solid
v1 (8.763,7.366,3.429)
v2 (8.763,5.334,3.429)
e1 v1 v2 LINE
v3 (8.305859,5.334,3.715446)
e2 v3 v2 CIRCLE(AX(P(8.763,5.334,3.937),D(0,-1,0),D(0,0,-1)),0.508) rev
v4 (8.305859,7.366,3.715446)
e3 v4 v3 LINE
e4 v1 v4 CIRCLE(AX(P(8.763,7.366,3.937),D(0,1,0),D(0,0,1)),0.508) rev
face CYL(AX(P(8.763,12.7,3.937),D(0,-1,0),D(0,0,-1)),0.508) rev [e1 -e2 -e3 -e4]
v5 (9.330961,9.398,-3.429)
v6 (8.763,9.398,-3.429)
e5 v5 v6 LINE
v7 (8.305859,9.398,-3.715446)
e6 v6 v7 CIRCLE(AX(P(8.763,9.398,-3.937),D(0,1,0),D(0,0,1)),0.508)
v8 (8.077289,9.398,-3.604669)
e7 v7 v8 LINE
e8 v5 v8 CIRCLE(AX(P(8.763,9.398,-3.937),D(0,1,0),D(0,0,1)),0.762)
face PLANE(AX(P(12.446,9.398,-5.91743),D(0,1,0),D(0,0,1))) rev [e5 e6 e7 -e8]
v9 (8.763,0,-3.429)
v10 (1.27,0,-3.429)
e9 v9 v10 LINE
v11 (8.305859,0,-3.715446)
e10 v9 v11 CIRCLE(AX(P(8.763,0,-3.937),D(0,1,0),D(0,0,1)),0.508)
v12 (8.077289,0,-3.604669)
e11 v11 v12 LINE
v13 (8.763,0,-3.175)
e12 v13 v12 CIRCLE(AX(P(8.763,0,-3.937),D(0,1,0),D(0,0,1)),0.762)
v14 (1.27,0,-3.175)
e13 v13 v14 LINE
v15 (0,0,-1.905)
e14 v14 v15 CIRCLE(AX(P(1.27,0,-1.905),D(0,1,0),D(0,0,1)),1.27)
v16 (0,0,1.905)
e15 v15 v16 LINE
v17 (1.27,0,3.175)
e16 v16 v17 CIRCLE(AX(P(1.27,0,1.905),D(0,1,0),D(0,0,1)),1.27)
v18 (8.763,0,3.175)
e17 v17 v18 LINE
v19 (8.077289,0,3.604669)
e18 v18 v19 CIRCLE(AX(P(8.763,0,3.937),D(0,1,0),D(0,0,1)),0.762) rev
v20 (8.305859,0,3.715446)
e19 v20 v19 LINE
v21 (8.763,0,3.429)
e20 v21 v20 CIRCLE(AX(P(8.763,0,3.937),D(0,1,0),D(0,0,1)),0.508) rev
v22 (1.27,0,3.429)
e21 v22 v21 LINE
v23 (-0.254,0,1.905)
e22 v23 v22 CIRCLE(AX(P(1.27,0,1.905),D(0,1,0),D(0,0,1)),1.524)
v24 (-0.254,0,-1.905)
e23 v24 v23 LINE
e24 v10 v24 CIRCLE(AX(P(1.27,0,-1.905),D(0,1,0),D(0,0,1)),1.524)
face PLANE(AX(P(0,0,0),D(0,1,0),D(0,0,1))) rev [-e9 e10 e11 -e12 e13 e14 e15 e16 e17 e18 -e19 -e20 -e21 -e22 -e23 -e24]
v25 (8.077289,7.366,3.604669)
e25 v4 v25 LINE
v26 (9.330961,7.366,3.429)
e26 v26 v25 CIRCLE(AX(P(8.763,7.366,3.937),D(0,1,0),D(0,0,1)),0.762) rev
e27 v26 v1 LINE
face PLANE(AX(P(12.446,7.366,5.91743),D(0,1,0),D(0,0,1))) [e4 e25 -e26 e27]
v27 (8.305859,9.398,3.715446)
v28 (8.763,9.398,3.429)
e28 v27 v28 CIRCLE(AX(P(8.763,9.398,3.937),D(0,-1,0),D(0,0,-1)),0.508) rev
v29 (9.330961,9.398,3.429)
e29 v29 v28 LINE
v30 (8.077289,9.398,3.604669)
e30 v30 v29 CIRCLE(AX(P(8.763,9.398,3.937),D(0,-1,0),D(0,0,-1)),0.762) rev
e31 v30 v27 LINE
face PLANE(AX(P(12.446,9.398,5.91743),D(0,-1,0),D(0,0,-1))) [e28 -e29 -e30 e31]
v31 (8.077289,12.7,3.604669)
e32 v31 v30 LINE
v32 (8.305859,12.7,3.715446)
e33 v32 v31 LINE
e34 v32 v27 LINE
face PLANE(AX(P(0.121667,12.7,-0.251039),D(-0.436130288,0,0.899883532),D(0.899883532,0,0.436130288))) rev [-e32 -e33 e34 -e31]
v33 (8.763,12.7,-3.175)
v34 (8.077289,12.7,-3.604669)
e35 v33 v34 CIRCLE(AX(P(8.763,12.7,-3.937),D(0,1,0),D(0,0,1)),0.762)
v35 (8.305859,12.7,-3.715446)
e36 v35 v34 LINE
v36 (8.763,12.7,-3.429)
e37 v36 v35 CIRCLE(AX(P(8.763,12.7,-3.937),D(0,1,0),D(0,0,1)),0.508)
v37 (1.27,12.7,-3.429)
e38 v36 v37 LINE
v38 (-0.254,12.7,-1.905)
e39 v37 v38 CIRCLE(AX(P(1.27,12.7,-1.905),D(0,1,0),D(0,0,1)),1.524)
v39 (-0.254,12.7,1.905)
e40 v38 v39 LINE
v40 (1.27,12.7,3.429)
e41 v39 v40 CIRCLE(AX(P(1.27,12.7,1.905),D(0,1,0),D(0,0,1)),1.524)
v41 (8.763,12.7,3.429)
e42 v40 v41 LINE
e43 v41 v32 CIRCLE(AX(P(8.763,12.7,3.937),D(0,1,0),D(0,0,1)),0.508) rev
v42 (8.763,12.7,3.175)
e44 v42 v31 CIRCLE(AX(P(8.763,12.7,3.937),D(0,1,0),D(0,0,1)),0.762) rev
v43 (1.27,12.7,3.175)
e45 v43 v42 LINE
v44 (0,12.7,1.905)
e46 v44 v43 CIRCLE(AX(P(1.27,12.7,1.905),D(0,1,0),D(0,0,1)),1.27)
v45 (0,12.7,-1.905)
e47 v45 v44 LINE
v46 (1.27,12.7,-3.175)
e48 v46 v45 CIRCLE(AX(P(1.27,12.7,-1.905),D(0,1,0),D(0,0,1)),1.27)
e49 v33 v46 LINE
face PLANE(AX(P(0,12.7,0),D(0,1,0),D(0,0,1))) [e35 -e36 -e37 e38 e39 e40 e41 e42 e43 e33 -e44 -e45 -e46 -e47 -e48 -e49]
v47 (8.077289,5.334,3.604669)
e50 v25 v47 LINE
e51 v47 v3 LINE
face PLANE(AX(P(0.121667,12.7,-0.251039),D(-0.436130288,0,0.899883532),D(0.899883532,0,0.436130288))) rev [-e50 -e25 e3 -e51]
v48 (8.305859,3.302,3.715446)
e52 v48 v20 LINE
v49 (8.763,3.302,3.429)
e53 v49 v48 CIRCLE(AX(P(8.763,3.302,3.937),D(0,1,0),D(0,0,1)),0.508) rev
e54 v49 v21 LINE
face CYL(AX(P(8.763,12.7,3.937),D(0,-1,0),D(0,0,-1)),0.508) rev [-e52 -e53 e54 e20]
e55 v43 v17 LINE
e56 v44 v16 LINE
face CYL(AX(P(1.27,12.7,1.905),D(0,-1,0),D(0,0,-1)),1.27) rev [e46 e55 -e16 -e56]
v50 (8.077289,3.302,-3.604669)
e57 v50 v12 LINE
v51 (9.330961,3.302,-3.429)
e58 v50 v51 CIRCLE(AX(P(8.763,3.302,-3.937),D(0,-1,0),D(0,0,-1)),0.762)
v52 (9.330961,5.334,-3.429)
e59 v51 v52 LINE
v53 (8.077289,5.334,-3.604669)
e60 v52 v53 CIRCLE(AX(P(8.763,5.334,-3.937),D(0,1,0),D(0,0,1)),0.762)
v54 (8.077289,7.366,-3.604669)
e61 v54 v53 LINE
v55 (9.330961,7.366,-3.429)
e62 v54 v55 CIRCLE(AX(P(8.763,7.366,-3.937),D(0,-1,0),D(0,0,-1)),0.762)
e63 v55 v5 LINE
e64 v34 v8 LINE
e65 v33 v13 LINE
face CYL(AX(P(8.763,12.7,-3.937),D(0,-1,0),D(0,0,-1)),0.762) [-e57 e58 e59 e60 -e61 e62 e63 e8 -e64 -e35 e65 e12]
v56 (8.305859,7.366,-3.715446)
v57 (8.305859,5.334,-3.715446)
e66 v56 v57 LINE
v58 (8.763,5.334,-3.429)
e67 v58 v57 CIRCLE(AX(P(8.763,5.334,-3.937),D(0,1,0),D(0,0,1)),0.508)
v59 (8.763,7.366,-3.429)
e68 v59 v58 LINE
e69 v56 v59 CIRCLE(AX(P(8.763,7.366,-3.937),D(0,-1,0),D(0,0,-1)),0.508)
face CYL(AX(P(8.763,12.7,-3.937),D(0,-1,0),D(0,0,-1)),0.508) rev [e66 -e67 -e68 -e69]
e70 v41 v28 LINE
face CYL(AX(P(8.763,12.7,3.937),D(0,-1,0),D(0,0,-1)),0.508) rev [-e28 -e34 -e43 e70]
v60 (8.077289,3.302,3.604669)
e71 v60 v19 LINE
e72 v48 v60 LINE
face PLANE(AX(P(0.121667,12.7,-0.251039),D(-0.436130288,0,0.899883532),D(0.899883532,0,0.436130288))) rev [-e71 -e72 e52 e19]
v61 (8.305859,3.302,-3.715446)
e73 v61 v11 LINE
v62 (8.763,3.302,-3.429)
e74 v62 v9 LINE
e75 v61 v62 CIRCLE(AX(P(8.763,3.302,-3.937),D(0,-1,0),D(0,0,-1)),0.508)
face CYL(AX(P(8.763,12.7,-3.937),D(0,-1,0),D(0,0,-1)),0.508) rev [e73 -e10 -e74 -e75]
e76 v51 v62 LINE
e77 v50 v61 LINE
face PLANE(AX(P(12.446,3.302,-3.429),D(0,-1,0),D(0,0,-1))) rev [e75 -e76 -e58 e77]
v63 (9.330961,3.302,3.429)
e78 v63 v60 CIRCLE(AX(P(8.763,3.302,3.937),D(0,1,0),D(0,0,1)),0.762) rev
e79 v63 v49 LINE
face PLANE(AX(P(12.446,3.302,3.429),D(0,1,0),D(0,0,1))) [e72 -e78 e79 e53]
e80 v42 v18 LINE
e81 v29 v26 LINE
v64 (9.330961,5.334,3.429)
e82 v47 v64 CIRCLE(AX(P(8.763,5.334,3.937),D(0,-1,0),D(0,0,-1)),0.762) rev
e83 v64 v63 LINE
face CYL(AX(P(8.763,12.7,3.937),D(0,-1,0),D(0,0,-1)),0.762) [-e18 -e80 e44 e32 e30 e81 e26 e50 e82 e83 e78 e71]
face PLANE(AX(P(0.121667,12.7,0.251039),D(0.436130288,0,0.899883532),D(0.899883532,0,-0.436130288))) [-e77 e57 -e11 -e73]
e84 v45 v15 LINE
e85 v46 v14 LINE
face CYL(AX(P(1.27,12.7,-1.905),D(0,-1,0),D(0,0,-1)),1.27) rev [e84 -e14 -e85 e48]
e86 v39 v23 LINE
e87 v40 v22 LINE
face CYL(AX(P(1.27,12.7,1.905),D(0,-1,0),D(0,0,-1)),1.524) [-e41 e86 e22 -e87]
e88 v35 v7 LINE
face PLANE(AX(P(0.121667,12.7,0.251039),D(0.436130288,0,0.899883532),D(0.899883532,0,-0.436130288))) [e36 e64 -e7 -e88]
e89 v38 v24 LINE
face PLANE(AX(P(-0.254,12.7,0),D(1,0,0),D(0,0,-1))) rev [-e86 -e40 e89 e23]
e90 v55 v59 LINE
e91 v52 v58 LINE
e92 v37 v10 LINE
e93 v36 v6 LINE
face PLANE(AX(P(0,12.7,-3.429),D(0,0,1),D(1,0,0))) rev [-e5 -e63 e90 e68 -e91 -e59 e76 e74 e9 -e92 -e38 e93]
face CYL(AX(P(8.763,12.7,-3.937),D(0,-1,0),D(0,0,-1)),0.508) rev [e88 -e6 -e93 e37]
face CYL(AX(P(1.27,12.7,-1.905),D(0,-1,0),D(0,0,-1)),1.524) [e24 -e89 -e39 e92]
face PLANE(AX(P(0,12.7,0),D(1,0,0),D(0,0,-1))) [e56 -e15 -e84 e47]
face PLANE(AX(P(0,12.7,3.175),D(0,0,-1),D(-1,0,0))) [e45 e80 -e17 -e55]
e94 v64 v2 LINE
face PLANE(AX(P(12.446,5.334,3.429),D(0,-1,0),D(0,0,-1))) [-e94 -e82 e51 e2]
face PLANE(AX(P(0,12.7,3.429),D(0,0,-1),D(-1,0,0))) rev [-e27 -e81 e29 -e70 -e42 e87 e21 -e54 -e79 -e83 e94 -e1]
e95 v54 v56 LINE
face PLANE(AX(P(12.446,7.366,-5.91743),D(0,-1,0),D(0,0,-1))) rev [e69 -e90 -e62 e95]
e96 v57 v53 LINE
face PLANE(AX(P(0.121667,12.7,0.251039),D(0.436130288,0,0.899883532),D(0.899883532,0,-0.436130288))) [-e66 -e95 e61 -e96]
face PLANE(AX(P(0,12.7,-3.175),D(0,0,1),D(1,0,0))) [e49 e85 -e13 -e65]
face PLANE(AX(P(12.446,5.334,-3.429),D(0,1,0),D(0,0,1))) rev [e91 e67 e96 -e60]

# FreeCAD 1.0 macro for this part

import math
import FreeCAD as App
import Part
import Sketcher
Q = App.Units.Quantity


def add_polygon(sketch, points):
    """Adds a closed chain of lines whose ends are joined by coincident constraints."""
    first, n = sketch.GeometryCount, len(points)
    for a, b in zip(points, points[1:] + points[:1]):
        sketch.addGeometry(Part.LineSegment(App.Vector(*a, 0), App.Vector(*b, 0)), False)
    for i in range(n):
        sketch.addConstraint(Sketcher.Constraint("Coincident", first + i, 2, first + (i + 1) % n, 1))

doc = App.newDocument("Part")
params = doc.addObject("Spreadsheet::Sheet", "Params")
for row, (alias, value) in enumerate([
    ("sketch1_radius", "0.03 in"),
    ("sketch1_radius2", "0.05 in"),
    ("sketch1_radius3", "0.02 in"),
    ("sketch1_height", "0.15 in"),
    ("sketch1_width", "0.295 in"),
    ("pad1_length", "0.5 in"),
    ("sketch2_width", "0.08 in"),
    ("pocket1_length", "0.5 in"),
], start=1):
    params.set(f"A{row}", alias)
    params.set(f"B{row}", "=" + value)
    params.setAlias(f"B{row}", alias)

body = doc.addObject("PartDesign::Body", "Body")

# Sketch on XZ plane
sketch1 = doc.addObject("Sketcher::SketchObject", "Sketch")
body.addObject(sketch1)
sketch1.AttachmentSupport = (doc.XZ_Plane, [""])
sketch1.MapMode = "FlatFace"
sketch1.addGeometry([
    Part.ArcOfCircle(Part.Circle(App.Vector(8.76, 3.94, 0), App.Vector(0, 0, 1), 0.76), math.radians(-90), math.radians(206)),  # 0
    Part.LineSegment(App.Vector(8.76, 3.17, 0), App.Vector(1.27, 3.17, 0)),  # 1
    Part.ArcOfCircle(Part.Circle(App.Vector(1.27, 1.91, 0), App.Vector(0, 0, 1), 1.27), math.radians(90), math.radians(180)),  # 2
    Part.LineSegment(App.Vector(0, 1.91, 0), App.Vector(0, -1.91, 0)),  # 3
    Part.ArcOfCircle(Part.Circle(App.Vector(1.27, -1.91, 0), App.Vector(0, 0, 1), 1.27), math.radians(180), math.radians(270)),  # 4
    Part.LineSegment(App.Vector(1.27, -3.17, 0), App.Vector(8.76, -3.17, 0)),  # 5
    Part.ArcOfCircle(Part.Circle(App.Vector(8.76, -3.94, 0), App.Vector(0, 0, 1), 0.76), math.radians(154), math.radians(450)),  # 6
    Part.LineSegment(App.Vector(8.08, -3.6, 0), App.Vector(8.31, -3.72, 0)),  # 7
    Part.ArcOfCircle(Part.Circle(App.Vector(8.76, -3.94, 0), App.Vector(0, 0, 1), 0.51), math.radians(154), math.radians(450)),  # 8
    Part.LineSegment(App.Vector(8.76, -3.43, 0), App.Vector(1.27, -3.43, 0)),  # 9
    Part.ArcOfCircle(Part.Circle(App.Vector(1.27, -1.91, 0), App.Vector(0, 0, 1), 1.52), math.radians(180), math.radians(270)),  # 10
    Part.LineSegment(App.Vector(-0.25, -1.91, 0), App.Vector(-0.25, 1.91, 0)),  # 11
    Part.ArcOfCircle(Part.Circle(App.Vector(1.27, 1.91, 0), App.Vector(0, 0, 1), 1.52), math.radians(90), math.radians(180)),  # 12
    Part.LineSegment(App.Vector(1.27, 3.43, 0), App.Vector(8.76, 3.43, 0)),  # 13
    Part.ArcOfCircle(Part.Circle(App.Vector(8.76, 3.94, 0), App.Vector(0, 0, 1), 0.51), math.radians(-90), math.radians(206)),  # 14
    Part.LineSegment(App.Vector(8.31, 3.72, 0), App.Vector(8.08, 3.6, 0)),  # 15
], False)
sketch1.addConstraint([
    Sketcher.Constraint("Tangent", 0, 1, 1, 1),
    Sketcher.Constraint("Tangent", 1, 2, 2, 1),
    Sketcher.Constraint("Tangent", 2, 2, 3, 1),
    Sketcher.Constraint("Tangent", 3, 2, 4, 1),
    Sketcher.Constraint("Tangent", 4, 2, 5, 1),
    Sketcher.Constraint("Tangent", 5, 2, 6, 2),
    Sketcher.Constraint("Coincident", 6, 1, 7, 1),
    Sketcher.Constraint("Coincident", 7, 2, 8, 1),
    Sketcher.Constraint("Tangent", 8, 2, 9, 1),
    Sketcher.Constraint("Tangent", 9, 2, 10, 2),
    Sketcher.Constraint("Tangent", 10, 1, 11, 1),
    Sketcher.Constraint("Tangent", 11, 2, 12, 2),
    Sketcher.Constraint("Tangent", 12, 1, 13, 1),
    Sketcher.Constraint("Tangent", 13, 2, 14, 1),
    Sketcher.Constraint("Coincident", 14, 2, 15, 1),
    Sketcher.Constraint("Coincident", 15, 2, 0, 2),
    Sketcher.Constraint("Horizontal", 1),
    Sketcher.Constraint("Vertical", 3),
    Sketcher.Constraint("Horizontal", 5),
    Sketcher.Constraint("Horizontal", 9),
    Sketcher.Constraint("Vertical", 11),
    Sketcher.Constraint("Horizontal", 13),
    Sketcher.Constraint("Coincident", 8, 3, 6, 3),
    Sketcher.Constraint("Coincident", 10, 3, 4, 3),
    Sketcher.Constraint("Coincident", 12, 3, 2, 3),
    Sketcher.Constraint("Coincident", 14, 3, 0, 3),
    Sketcher.Constraint("Equal", 2, 4),
    Sketcher.Constraint("Equal", 0, 6),
    Sketcher.Constraint("Symmetric", 2, 2, 3, 2, -1, 1),
    Sketcher.Constraint("Symmetric", 7, 2, 14, 2, -1),
    Sketcher.Constraint("Vertical", 6, 1, 15, 2),
    Sketcher.Constraint("Radius", 0, Q("0.03 in")),
    Sketcher.Constraint("Radius", 2, Q("0.05 in")),
    Sketcher.Constraint("Radius", 8, Q("0.02 in")),
    Sketcher.Constraint("DistanceY", 3, 2, 3, 1, Q("0.15 in")),
    Sketcher.Constraint("DistanceX", 1, 2, 1, 1, Q("0.295 in")),
    Sketcher.Constraint("DistanceX", -1, 1, 6, 1, 8.077289),
    Sketcher.Constraint("DistanceX", -1, 1, 7, 2, 8.305859),
])
sketch1.setExpression("Constraints[31]", "Params.sketch1_radius")
sketch1.setExpression("Constraints[32]", "Params.sketch1_radius2")
sketch1.setExpression("Constraints[33]", "Params.sketch1_radius3")
sketch1.setExpression("Constraints[34]", "Params.sketch1_height")
sketch1.setExpression("Constraints[35]", "Params.sketch1_width")
pad1 = doc.addObject("PartDesign::Pad", "Pad")
body.addObject(pad1)
pad1.Profile = sketch1
pad1.setExpression("Length", "Params.pad1_length")
pad1.Reversed = True

# Sketch on YZ plane
sketch2 = doc.addObject("Sketcher::SketchObject", "Sketch001")
body.addObject(sketch2)
sketch2.AttachmentSupport = (doc.YZ_Plane, [""])
sketch2.MapMode = "FlatFace"
sketch2.AttachmentOffset = App.Placement(App.Vector(0, 0, -0.01 * 25.4), App.Rotation())
add_polygon(sketch2, [(9.4, -5.9), (7.4, -5.9), (7.4, -3.4), (9.4, -3.4)])  # lines 0-3
add_polygon(sketch2, [(5.3, -5.9), (3.3, -5.9), (3.3, -3.4), (5.3, -3.4)])  # lines 4-7
sketch2.addConstraint([
    Sketcher.Constraint("Horizontal", 0),
    Sketcher.Constraint("Vertical", 1),
    Sketcher.Constraint("Horizontal", 2),
    Sketcher.Constraint("Vertical", 3),
    Sketcher.Constraint("Horizontal", 4),
    Sketcher.Constraint("Vertical", 5),
    Sketcher.Constraint("Horizontal", 6),
    Sketcher.Constraint("Vertical", 7),
    Sketcher.Constraint("Horizontal", 3, 2, 4, 2),
    Sketcher.Constraint("Horizontal", 2, 2, 5, 2),
    Sketcher.Constraint("Equal", 2, 4),
    Sketcher.Constraint("DistanceX", 0, 2, 0, 1, Q("0.08 in")),
    Sketcher.Constraint("DistanceX", -1, 1, 0, 2, Q("0.29 in")),
    Sketcher.Constraint("DistanceX", -1, 1, 4, 2, Q("0.13 in")),
    Sketcher.Constraint("DistanceY", 1, 2, -1, 1, Q("0.135 in")),
    Sketcher.Constraint("DistanceY", 1, 1, 1, 2, 2.48843),
])
sketch2.setExpression("Constraints[19]", "Params.sketch2_width")
pocket1 = doc.addObject("PartDesign::Pocket", "Pocket")
body.addObject(pocket1)
pocket1.Profile = sketch2
pocket1.setExpression("Length", "Params.pocket1_length")
pocket1.Reversed = True
doc.recompute()

mirrored = doc.addObject("PartDesign::Mirrored", "Mirrored")
body.addObject(mirrored)
mirrored.Originals = [pocket1]
mirrored.MirrorPlane = (doc.XY_Plane, [""])
body.Tip = mirrored

doc.recompute()
